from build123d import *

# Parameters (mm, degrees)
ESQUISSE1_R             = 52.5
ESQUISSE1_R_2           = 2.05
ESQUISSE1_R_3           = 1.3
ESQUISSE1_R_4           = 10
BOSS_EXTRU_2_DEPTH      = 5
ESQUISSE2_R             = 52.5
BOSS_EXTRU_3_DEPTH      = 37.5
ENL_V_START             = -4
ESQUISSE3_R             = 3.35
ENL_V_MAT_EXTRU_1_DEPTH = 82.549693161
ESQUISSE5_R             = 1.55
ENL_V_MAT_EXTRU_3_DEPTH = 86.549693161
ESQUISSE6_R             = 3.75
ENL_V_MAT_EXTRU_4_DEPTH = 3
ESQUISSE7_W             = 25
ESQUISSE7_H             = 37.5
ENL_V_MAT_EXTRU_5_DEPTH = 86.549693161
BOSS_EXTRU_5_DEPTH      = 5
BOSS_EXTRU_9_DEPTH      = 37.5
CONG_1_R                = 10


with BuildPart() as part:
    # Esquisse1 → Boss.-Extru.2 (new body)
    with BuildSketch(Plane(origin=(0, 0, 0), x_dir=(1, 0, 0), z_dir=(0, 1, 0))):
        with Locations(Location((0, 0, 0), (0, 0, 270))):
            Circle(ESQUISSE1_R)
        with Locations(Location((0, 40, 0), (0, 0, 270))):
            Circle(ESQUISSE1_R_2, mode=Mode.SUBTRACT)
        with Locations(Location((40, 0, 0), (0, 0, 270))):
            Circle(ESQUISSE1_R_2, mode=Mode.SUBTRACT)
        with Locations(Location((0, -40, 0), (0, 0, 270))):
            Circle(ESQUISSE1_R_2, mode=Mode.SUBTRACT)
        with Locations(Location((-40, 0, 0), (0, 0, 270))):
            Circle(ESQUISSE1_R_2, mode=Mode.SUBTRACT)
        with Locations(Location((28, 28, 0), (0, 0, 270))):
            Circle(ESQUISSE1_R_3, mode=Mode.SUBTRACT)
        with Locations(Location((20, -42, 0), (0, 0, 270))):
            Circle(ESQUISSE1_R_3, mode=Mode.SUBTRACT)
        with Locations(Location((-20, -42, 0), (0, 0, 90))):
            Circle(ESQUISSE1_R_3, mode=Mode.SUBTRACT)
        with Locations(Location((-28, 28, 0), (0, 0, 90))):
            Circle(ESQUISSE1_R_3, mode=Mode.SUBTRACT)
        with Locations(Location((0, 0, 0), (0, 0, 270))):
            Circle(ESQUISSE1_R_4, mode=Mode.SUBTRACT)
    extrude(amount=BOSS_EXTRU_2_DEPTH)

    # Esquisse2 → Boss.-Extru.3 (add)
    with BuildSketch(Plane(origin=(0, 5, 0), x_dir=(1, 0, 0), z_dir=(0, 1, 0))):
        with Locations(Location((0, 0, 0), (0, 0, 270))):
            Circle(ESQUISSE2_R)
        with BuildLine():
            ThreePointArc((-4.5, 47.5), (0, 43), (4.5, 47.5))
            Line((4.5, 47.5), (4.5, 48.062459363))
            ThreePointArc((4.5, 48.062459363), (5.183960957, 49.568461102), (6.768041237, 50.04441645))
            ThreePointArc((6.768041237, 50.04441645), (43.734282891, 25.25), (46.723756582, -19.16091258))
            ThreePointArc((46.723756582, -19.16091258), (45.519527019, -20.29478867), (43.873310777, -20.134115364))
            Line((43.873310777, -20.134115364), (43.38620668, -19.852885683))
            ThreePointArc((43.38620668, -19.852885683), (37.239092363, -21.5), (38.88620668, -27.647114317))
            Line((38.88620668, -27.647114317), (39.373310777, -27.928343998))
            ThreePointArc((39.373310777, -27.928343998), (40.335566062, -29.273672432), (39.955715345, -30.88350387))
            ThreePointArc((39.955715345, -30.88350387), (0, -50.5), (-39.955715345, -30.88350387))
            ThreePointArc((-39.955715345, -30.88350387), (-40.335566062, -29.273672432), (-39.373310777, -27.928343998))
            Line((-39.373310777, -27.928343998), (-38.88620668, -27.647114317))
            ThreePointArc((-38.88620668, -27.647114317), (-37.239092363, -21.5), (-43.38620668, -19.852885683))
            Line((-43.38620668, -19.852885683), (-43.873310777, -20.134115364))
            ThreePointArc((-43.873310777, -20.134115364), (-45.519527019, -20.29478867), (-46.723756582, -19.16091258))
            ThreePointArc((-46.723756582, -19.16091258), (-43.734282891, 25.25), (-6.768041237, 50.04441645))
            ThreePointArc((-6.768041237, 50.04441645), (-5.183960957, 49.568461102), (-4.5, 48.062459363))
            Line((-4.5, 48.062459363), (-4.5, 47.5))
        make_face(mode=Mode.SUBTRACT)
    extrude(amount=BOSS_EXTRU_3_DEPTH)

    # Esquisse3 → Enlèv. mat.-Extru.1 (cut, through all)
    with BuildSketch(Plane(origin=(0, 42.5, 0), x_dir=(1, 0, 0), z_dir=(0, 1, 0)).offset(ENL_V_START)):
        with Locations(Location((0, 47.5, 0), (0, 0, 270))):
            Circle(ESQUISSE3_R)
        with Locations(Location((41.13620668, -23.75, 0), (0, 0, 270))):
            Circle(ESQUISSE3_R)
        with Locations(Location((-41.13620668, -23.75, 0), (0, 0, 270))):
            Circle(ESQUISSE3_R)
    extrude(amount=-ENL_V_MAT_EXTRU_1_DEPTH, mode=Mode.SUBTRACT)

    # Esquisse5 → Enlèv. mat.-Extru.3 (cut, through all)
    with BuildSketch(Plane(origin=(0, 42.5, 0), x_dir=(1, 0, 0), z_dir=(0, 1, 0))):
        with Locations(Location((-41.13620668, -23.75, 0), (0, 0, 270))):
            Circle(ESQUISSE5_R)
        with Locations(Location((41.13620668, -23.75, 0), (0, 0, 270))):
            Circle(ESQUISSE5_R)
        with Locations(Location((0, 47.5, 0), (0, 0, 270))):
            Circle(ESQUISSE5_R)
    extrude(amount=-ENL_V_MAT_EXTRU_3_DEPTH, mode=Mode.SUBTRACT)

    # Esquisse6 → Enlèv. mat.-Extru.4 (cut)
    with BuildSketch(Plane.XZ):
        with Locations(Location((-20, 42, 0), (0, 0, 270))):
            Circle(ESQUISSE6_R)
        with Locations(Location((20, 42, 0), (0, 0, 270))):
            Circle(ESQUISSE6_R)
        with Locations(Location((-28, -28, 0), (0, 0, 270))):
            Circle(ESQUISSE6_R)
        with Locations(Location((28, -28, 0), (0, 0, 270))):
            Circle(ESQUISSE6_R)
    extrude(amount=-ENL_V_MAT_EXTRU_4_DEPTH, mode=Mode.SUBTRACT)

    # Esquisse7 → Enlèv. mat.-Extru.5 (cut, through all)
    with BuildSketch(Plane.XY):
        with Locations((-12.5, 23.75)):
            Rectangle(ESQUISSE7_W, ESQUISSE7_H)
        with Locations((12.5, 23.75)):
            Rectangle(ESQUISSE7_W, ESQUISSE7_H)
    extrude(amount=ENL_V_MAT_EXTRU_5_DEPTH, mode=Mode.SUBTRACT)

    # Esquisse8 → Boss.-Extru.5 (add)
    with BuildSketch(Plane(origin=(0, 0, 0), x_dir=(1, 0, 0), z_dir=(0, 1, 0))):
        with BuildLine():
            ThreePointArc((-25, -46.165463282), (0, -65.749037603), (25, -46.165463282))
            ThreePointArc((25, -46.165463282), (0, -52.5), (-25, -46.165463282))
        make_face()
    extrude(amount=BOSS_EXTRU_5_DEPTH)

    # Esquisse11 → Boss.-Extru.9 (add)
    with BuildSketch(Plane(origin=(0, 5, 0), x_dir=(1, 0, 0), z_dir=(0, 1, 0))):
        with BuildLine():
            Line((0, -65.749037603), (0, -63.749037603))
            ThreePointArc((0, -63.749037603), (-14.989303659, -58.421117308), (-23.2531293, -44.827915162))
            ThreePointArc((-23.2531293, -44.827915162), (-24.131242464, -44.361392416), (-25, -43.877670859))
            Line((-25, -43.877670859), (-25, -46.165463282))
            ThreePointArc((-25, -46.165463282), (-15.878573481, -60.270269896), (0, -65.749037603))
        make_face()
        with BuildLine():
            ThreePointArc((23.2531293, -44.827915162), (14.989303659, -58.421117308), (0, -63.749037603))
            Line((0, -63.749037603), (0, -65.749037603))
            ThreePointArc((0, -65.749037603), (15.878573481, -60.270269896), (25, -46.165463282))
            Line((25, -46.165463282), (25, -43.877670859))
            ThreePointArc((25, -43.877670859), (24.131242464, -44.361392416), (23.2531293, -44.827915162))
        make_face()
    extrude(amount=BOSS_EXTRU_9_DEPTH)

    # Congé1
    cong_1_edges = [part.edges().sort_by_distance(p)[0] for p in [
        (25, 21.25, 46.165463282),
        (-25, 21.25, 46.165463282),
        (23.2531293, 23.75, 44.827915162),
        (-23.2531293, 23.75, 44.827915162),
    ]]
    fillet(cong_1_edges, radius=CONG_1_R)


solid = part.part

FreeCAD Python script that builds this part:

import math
import FreeCAD as App
import Part
import Sketcher

V = App.Vector
Q = App.Units.Quantity


def edges_at(feature, points):
    """Names of the edges that pass closest to the given points."""
    edges = feature.Shape.Edges
    near = lambda p: min(range(len(edges)), key=lambda i: edges[i].distToShape(Part.Vertex(*p))[0])
    return sorted({f"Edge{near(p) + 1}" for p in points})

doc = App.newDocument("Part")
body = doc.addObject("PartDesign::Body", "Body")

sketch1 = body.newObject("Sketcher::SketchObject", "Sketch")
sketch1.AttachmentSupport = (doc.getObject("XZ_Plane"), [""])
sketch1.MapMode = "FlatFace"
sketch1.addGeometry(Part.Circle(V(0, 0, 0), V(0, 0, 1), 52.5), False)
sketch1.addGeometry(Part.Circle(V(-28, -28, 0), V(0, 0, 1), 1.3), False)
sketch1.addGeometry(Part.Circle(V(-40, 0, 0), V(0, 0, 1), 2), False)
sketch1.addGeometry(Part.Circle(V(0, -40, 0), V(0, 0, 1), 2), False)
sketch1.addGeometry(Part.Circle(V(-20, 42, 0), V(0, 0, 1), 1.3), False)
sketch1.addGeometry(Part.Circle(V(0, 0, 0), V(0, 0, 1), 10), False)
sketch1.addGeometry(Part.Circle(V(28, -28, 0), V(0, 0, 1), 1.3), False)
sketch1.addGeometry(Part.Circle(V(40, 0, 0), V(0, 0, 1), 2), False)
sketch1.addGeometry(Part.Circle(V(0, 40, 0), V(0, 0, 1), 2), False)
sketch1.addGeometry(Part.Circle(V(20, 42, 0), V(0, 0, 1), 1.3), False)
sketch1.addConstraint(Sketcher.Constraint("Coincident", 0, 3, -1, 1))
sketch1.addConstraint(Sketcher.Constraint("Coincident", 5, 3, -1, 1))
sketch1.addConstraint(Sketcher.Constraint("Equal", 2, 3))
sketch1.addConstraint(Sketcher.Constraint("Equal", 1, 4))
sketch1.addConstraint(Sketcher.Constraint("Equal", 4, 6))
sketch1.addConstraint(Sketcher.Constraint("Equal", 3, 7))
sketch1.addConstraint(Sketcher.Constraint("Equal", 7, 8))
sketch1.addConstraint(Sketcher.Constraint("Equal", 6, 9))
sketch1.addConstraint(Sketcher.Constraint("Symmetric", 2, 3, 7, 3, -1, 1))
sketch1.addConstraint(Sketcher.Constraint("Symmetric", 3, 3, 8, 3, -1, 1))
sketch1.addConstraint(Sketcher.Constraint("Symmetric", 1, 3, 6, 3, -2))
sketch1.addConstraint(Sketcher.Constraint("Symmetric", 4, 3, 9, 3, -2))
sketch1.addConstraint(Sketcher.Constraint("PointOnObject", 2, 3, -1))
sketch1.addConstraint(Sketcher.Constraint("PointOnObject", 3, 3, -2))
sketch1.addConstraint(Sketcher.Constraint("Diameter", 0, 105.0))
sketch1.addConstraint(Sketcher.Constraint("Diameter", 5, 20.0))
sketch1.addConstraint(Sketcher.Constraint("Diameter", 1, 2.6))
sketch1.addConstraint(Sketcher.Constraint("Diameter", 2, 4.1))
sketch1.addConstraint(Sketcher.Constraint("DistanceX", 1, 3, -1, 1, 28.0))
sketch1.addConstraint(Sketcher.Constraint("DistanceY", 1, 3, -1, 1, 28.0))
sketch1.addConstraint(Sketcher.Constraint("DistanceX", 2, 3, -1, 1, 40.0))
sketch1.addConstraint(Sketcher.Constraint("DistanceY", 3, 3, -1, 1, 40.0))
sketch1.addConstraint(Sketcher.Constraint("DistanceX", 4, 3, -1, 1, 20.0))
sketch1.addConstraint(Sketcher.Constraint("DistanceY", -1, 1, 4, 3, 42.0))
pad1 = body.newObject("PartDesign::Pad", "Pad")
pad1.Profile = sketch1
pad1.Length = 5
pad1.Reversed = True

sketch2 = body.newObject("Sketcher::SketchObject", "Sketch001")
sketch2.AttachmentSupport = (doc.getObject("XZ_Plane"), [""])
sketch2.MapMode = "FlatFace"
sketch2.AttachmentOffset = App.Placement(V(0, 0, -5), App.Rotation())
sketch2.addGeometry(Part.Circle(V(0, 0, 0), V(0, 0, 1), 52.5), False)
sketch2.addGeometry(Part.LineSegment(V(-4.5, -48.1, 0), V(-4.5, -47.5, 0)), False)
sketch2.addGeometry(Part.ArcOfCircle(Part.Circle(V(0, -47.5, 0), V(0, 0, 1), 4.5), math.radians(0), math.radians(180)), False)
sketch2.addGeometry(Part.LineSegment(V(4.5, -47.5, 0), V(4.5, -48.1, 0)), False)
sketch2.addGeometry(Part.ArcOfCircle(Part.Circle(V(6.5, -48.1, 0), V(0, 0, 1), 2), math.radians(180), math.radians(278)), False)
sketch2.addGeometry(Part.ArcOfCircle(Part.Circle(V(0, 0, 0), V(0, 0, 1), 50.5), math.radians(-82), math.radians(22)), False)
sketch2.addGeometry(Part.ArcOfCircle(Part.Circle(V(44.9, 18.4, 0), V(0, 0, 1), 2), math.radians(22), math.radians(120)), False)
sketch2.addGeometry(Part.LineSegment(V(43.9, 20.1, 0), V(43.4, 19.9, 0)), False)
sketch2.addGeometry(Part.ArcOfCircle(Part.Circle(V(41.1, 23.8, 0), V(0, 0, 1), 4.5), math.radians(120), math.radians(300)), False)
sketch2.addGeometry(Part.LineSegment(V(38.9, 27.6, 0), V(39.4, 27.9, 0)), False)
sketch2.addGeometry(Part.ArcOfCircle(Part.Circle(V(38.4, 29.7, 0), V(0, 0, 1), 2), math.radians(-60), math.radians(38)), False)
sketch2.addGeometry(Part.ArcOfCircle(Part.Circle(V(0, 0, 0), V(0, 0, 1), 50.5), math.radians(38), math.radians(142)), False)
sketch2.addGeometry(Part.ArcOfCircle(Part.Circle(V(-38.4, 29.7, 0), V(0, 0, 1), 2), math.radians(142), math.radians(240)), False)
sketch2.addGeometry(Part.LineSegment(V(-39.4, 27.9, 0), V(-38.9, 27.6, 0)), False)
sketch2.addGeometry(Part.ArcOfCircle(Part.Circle(V(-41.1, 23.8, 0), V(0, 0, 1), 4.5), math.radians(-120), math.radians(60)), False)
sketch2.addGeometry(Part.LineSegment(V(-43.4, 19.9, 0), V(-43.9, 20.1, 0)), False)
sketch2.addGeometry(Part.ArcOfCircle(Part.Circle(V(-44.9, 18.4, 0), V(0, 0, 1), 2), math.radians(60), math.radians(158)), False)
sketch2.addGeometry(Part.ArcOfCircle(Part.Circle(V(0, 0, 0), V(0, 0, 1), 50.5), math.radians(158), math.radians(262)), False)
sketch2.addGeometry(Part.ArcOfCircle(Part.Circle(V(-6.5, -48.1, 0), V(0, 0, 1), 2), math.radians(-98), math.radians(0)), False)
sketch2.addConstraint(Sketcher.Constraint("Tangent", 1, 2, 2, 2))
sketch2.addConstraint(Sketcher.Constraint("Tangent", 2, 1, 3, 1))
sketch2.addConstraint(Sketcher.Constraint("Tangent", 3, 2, 4, 1))
sketch2.addConstraint(Sketcher.Constraint("Tangent", 4, 2, 5, 1))
sketch2.addConstraint(Sketcher.Constraint("Tangent", 5, 2, 6, 1))
sketch2.addConstraint(Sketcher.Constraint("Tangent", 6, 2, 7, 1))
sketch2.addConstraint(Sketcher.Constraint("Tangent", 7, 2, 8, 2))
sketch2.addConstraint(Sketcher.Constraint("Tangent", 8, 1, 9, 1))
sketch2.addConstraint(Sketcher.Constraint("Tangent", 9, 2, 10, 1))
sketch2.addConstraint(Sketcher.Constraint("Tangent", 10, 2, 11, 1))
sketch2.addConstraint(Sketcher.Constraint("Tangent", 11, 2, 12, 1))
sketch2.addConstraint(Sketcher.Constraint("Tangent", 12, 2, 13, 1))
sketch2.addConstraint(Sketcher.Constraint("Tangent", 13, 2, 14, 2))
sketch2.addConstraint(Sketcher.Constraint("Tangent", 14, 1, 15, 1))
sketch2.addConstraint(Sketcher.Constraint("Tangent", 15, 2, 16, 1))
sketch2.addConstraint(Sketcher.Constraint("Tangent", 16, 2, 17, 1))
sketch2.addConstraint(Sketcher.Constraint("Tangent", 17, 2, 18, 1))
sketch2.addConstraint(Sketcher.Constraint("Tangent", 18, 2, 1, 1))
sketch2.addConstraint(Sketcher.Constraint("Vertical", 1))
sketch2.addConstraint(Sketcher.Constraint("Vertical", 3))
sketch2.addConstraint(Sketcher.Constraint("Coincident", 0, 3, -1, 1))
sketch2.addConstraint(Sketcher.Constraint("Coincident", 5, 3, -1, 1))
sketch2.addConstraint(Sketcher.Constraint("Coincident", 11, 3, -1, 1))
sketch2.addConstraint(Sketcher.Constraint("Coincident", 17, 3, -1, 1))
sketch2.addConstraint(Sketcher.Constraint("Equal", 4, 6))
sketch2.addConstraint(Sketcher.Constraint("Equal", 2, 8))
sketch2.addConstraint(Sketcher.Constraint("Equal", 6, 10))
sketch2.addConstraint(Sketcher.Constraint("Equal", 5, 11))
sketch2.addConstraint(Sketcher.Constraint("Equal", 10, 12))
sketch2.addConstraint(Sketcher.Constraint("Equal", 8, 14))
sketch2.addConstraint(Sketcher.Constraint("Equal", 12, 16))
sketch2.addConstraint(Sketcher.Constraint("Equal", 11, 17))
sketch2.addConstraint(Sketcher.Constraint("Equal", 16, 18))
sketch2.addConstraint(Sketcher.Constraint("Symmetric", 8, 3, 14, 3, -2))
sketch2.addConstraint(Sketcher.Constraint("PointOnObject", 2, 3, -2))
sketch2.addConstraint(Sketcher.Constraint("Parallel", 7, 9))
sketch2.addConstraint(Sketcher.Constraint("Parallel", 13, 15))
sketch2.addConstraint(Sketcher.Constraint("Horizontal", 10, 3, 12, 3))
sketch2.addConstraint(Sketcher.Constraint("Equal", 7, 9))
sketch2.addConstraint(Sketcher.Constraint("Diameter", 0, 105.0))
sketch2.addConstraint(Sketcher.Constraint("Radius", 4, 2.0))
sketch2.addConstraint(Sketcher.Constraint("Radius", 2, 4.5))
sketch2.addConstraint(Sketcher.Constraint("Radius", 5, 50.5))
sketch2.addConstraint(Sketcher.Constraint("Angle", 7, Q("-150 deg")))
sketch2.addConstraint(Sketcher.Constraint("DistanceY", 2, 3, -1, 1, 47.5))
sketch2.addConstraint(Sketcher.Constraint("DistanceY", -1, 1, 8, 3, 23.75))
pad2 = body.newObject("PartDesign::Pad", "Pad001")
pad2.Profile = sketch2
pad2.Length = 37.5
pad2.Reversed = True

sketch3 = body.newObject("Sketcher::SketchObject", "Sketch002")
sketch3.AttachmentSupport = (doc.getObject("XZ_Plane"), [""])
sketch3.MapMode = "FlatFace"
sketch3.AttachmentOffset = App.Placement(V(0, 0, -38.5), App.Rotation())
sketch3.addGeometry(Part.Circle(V(0, -47.5, 0), V(0, 0, 1), 3.4), False)
sketch3.addGeometry(Part.Circle(V(41.1, 23.8, 0), V(0, 0, 1), 3.4), False)
sketch3.addGeometry(Part.Circle(V(-41.1, 23.8, 0), V(0, 0, 1), 3.4), False)
sketch3.addConstraint(Sketcher.Constraint("Equal", 0, 1))
sketch3.addConstraint(Sketcher.Constraint("Equal", 1, 2))
sketch3.addConstraint(Sketcher.Constraint("Symmetric", 1, 3, 2, 3, -2))
sketch3.addConstraint(Sketcher.Constraint("PointOnObject", 0, 3, -2))
sketch3.addConstraint(Sketcher.Constraint("Diameter", 0, 6.7))
sketch3.addConstraint(Sketcher.Constraint("DistanceY", 0, 3, -1, 1, 47.5))
sketch3.addConstraint(Sketcher.Constraint("DistanceY", -1, 1, 1, 3, 23.75))
sketch3.addConstraint(Sketcher.Constraint("DistanceX", -1, 1, 1, 3, 41.136207))
pocket1 = body.newObject("PartDesign::Pocket", "Pocket")
pocket1.Profile = sketch3
pocket1.Type = "ThroughAll"
pocket1.Reversed = True

sketch4 = body.newObject("Sketcher::SketchObject", "Sketch003")
sketch4.AttachmentSupport = (doc.getObject("XZ_Plane"), [""])
sketch4.MapMode = "FlatFace"
sketch4.AttachmentOffset = App.Placement(V(0, 0, -42.5), App.Rotation())
sketch4.addGeometry(Part.Circle(V(-41.1, 23.8, 0), V(0, 0, 1), 1.6), False)
sketch4.addGeometry(Part.Circle(V(41.1, 23.8, 0), V(0, 0, 1), 1.6), False)
sketch4.addGeometry(Part.Circle(V(0, -47.5, 0), V(0, 0, 1), 1.6), False)
sketch4.addConstraint(Sketcher.Constraint("Equal", 0, 1))
sketch4.addConstraint(Sketcher.Constraint("Equal", 1, 2))
sketch4.addConstraint(Sketcher.Constraint("Symmetric", 0, 3, 1, 3, -2))
sketch4.addConstraint(Sketcher.Constraint("PointOnObject", 2, 3, -2))
sketch4.addConstraint(Sketcher.Constraint("Diameter", 0, 3.1))
sketch4.addConstraint(Sketcher.Constraint("DistanceY", 2, 3, -1, 1, 47.5))
sketch4.addConstraint(Sketcher.Constraint("DistanceY", -1, 1, 0, 3, 23.75))
sketch4.addConstraint(Sketcher.Constraint("DistanceX", 0, 3, -1, 1, 41.136207))
pocket2 = body.newObject("PartDesign::Pocket", "Pocket001")
pocket2.Profile = sketch4
pocket2.Type = "ThroughAll"
pocket2.Reversed = True

sketch5 = body.newObject("Sketcher::SketchObject", "Sketch004")
sketch5.AttachmentSupport = (doc.getObject("XZ_Plane"), [""])
sketch5.MapMode = "FlatFace"
sketch5.addGeometry(Part.Circle(V(-20, 42, 0), V(0, 0, 1), 3.8), False)
sketch5.addGeometry(Part.Circle(V(20, 42, 0), V(0, 0, 1), 3.8), False)
sketch5.addGeometry(Part.Circle(V(-28, -28, 0), V(0, 0, 1), 3.8), False)
sketch5.addGeometry(Part.Circle(V(28, -28, 0), V(0, 0, 1), 3.8), False)
sketch5.addConstraint(Sketcher.Constraint("Equal", 0, 1))
sketch5.addConstraint(Sketcher.Constraint("Equal", 1, 2))
sketch5.addConstraint(Sketcher.Constraint("Equal", 2, 3))
sketch5.addConstraint(Sketcher.Constraint("Symmetric", 0, 3, 1, 3, -2))
sketch5.addConstraint(Sketcher.Constraint("Symmetric", 2, 3, 3, 3, -2))
sketch5.addConstraint(Sketcher.Constraint("Diameter", 0, 7.5))
sketch5.addConstraint(Sketcher.Constraint("DistanceX", 0, 3, -1, 1, 20.0))
sketch5.addConstraint(Sketcher.Constraint("DistanceY", -1, 1, 0, 3, 42.0))
sketch5.addConstraint(Sketcher.Constraint("DistanceX", 2, 3, -1, 1, 28.0))
sketch5.addConstraint(Sketcher.Constraint("DistanceY", 2, 3, -1, 1, 28.0))
pocket3 = body.newObject("PartDesign::Pocket", "Pocket002")
pocket3.Profile = sketch5
pocket3.Length = 3

sketch6 = body.newObject("Sketcher::SketchObject", "Sketch005")
sketch6.AttachmentSupport = (doc.getObject("XY_Plane"), [""])
sketch6.MapMode = "FlatFace"
sketch6.addGeometry(Part.LineSegment(V(-25, 42, 0), V(-25, 5, 0)), False)
sketch6.addGeometry(Part.LineSegment(V(-25, 5, 0), V(25, 5, 0)), False)
sketch6.addGeometry(Part.LineSegment(V(25, 5, 0), V(25, 42, 0)), False)
sketch6.addGeometry(Part.LineSegment(V(25, 42, 0), V(-25, 42, 0)), False)
sketch6.addConstraint(Sketcher.Constraint("Coincident", 0, 2, 1, 1))
sketch6.addConstraint(Sketcher.Constraint("Coincident", 1, 2, 2, 1))
sketch6.addConstraint(Sketcher.Constraint("Coincident", 2, 2, 3, 1))
sketch6.addConstraint(Sketcher.Constraint("Coincident", 3, 2, 0, 1))
sketch6.addConstraint(Sketcher.Constraint("Vertical", 0))
sketch6.addConstraint(Sketcher.Constraint("Horizontal", 1))
sketch6.addConstraint(Sketcher.Constraint("Vertical", 2))
sketch6.addConstraint(Sketcher.Constraint("Horizontal", 3))
sketch6.addConstraint(Sketcher.Constraint("DistanceX", 1, 1, 1, 2, 50.0))
sketch6.addConstraint(Sketcher.Constraint("DistanceY", 0, 2, 0, 1, 37.5))
sketch6.addConstraint(Sketcher.Constraint("DistanceX", 0, 2, -1, 1, 25.0))
sketch6.addConstraint(Sketcher.Constraint("DistanceY", -1, 1, 0, 2, 5.0))
pocket4 = body.newObject("PartDesign::Pocket", "Pocket003")
pocket4.Profile = sketch6
pocket4.Type = "ThroughAll"
pocket4.Reversed = True

sketch7 = body.newObject("Sketcher::SketchObject", "Sketch006")
sketch7.AttachmentSupport = (doc.getObject("XZ_Plane"), [""])
sketch7.MapMode = "FlatFace"
sketch7.addGeometry(Part.ArcOfCircle(Part.Circle(V(0, 40, 0), V(0, 0, 1), 26), math.radians(14), math.radians(166)), False)
sketch7.addGeometry(Part.ArcOfCircle(Part.Circle(V(0, 0, 0), V(0, 0, 1), 53), math.radians(62), math.radians(118)), False)
sketch7.addConstraint(Sketcher.Constraint("Coincident", 0, 1, 1, 1))
sketch7.addConstraint(Sketcher.Constraint("Coincident", 1, 2, 0, 2))
sketch7.addConstraint(Sketcher.Constraint("Coincident", 1, 3, -1, 1))
sketch7.addConstraint(Sketcher.Constraint("PointOnObject", 0, 3, -2))
sketch7.addConstraint(Sketcher.Constraint("Radius", 1, 52.5))
sketch7.addConstraint(Sketcher.Constraint("DistanceY", -1, 1, 0, 3, 40.0))
sketch7.addConstraint(Sketcher.Constraint("DistanceX", -1, 1, 0, 1, 25.0))
pad3 = body.newObject("PartDesign::Pad", "Pad002")
pad3.Profile = sketch7
pad3.Length = 5
pad3.Reversed = True

sketch8 = body.newObject("Sketcher::SketchObject", "Sketch007")
sketch8.AttachmentSupport = (doc.getObject("XZ_Plane"), [""])
sketch8.MapMode = "FlatFace"
sketch8.AttachmentOffset = App.Placement(V(0, 0, -5), App.Rotation())
sketch8.addGeometry(Part.ArcOfCircle(Part.Circle(V(0, 40, 0), V(0, 0, 1), 23.7), math.radians(90), math.radians(168)), False)
sketch8.addGeometry(Part.ArcOfCircle(Part.Circle(V(0, 0, 0), V(0, 0, 1), 50.5), math.radians(117.42), math.radians(119.67)), False)
sketch8.addGeometry(Part.LineSegment(V(-25, 43.9, 0), V(-25, 46.2, 0)), False)
sketch8.addGeometry(Part.ArcOfCircle(Part.Circle(V(0, 40, 0), V(0, 0, 1), 25.7), math.radians(90), math.radians(166)), False)
sketch8.addGeometry(Part.ArcOfCircle(Part.Circle(V(0, 40, 0), V(0, 0, 1), 25.7), math.radians(14), math.radians(90)), False)
sketch8.addGeometry(Part.LineSegment(V(25, 46.2, 0), V(25, 43.9, 0)), False)
sketch8.addGeometry(Part.ArcOfCircle(Part.Circle(V(0, 0, 0), V(0, 0, 1), 50.5), math.radians(60.33), math.radians(62.58)), False)
sketch8.addGeometry(Part.ArcOfCircle(Part.Circle(V(0, 40, 0), V(0, 0, 1), 23.7), math.radians(12), math.radians(90)), False)
sketch8.addConstraint(Sketcher.Constraint("Coincident", 0, 2, 1, 1))
sketch8.addConstraint(Sketcher.Constraint("Coincident", 1, 2, 2, 1))
sketch8.addConstraint(Sketcher.Constraint("Coincident", 2, 2, 3, 2))
sketch8.addConstraint(Sketcher.Constraint("Tangent", 3, 1, 4, 2))
sketch8.addConstraint(Sketcher.Constraint("Coincident", 4, 1, 5, 1))
sketch8.addConstraint(Sketcher.Constraint("Coincident", 5, 2, 6, 1))
sketch8.addConstraint(Sketcher.Constraint("Coincident", 6, 2, 7, 1))
sketch8.addConstraint(Sketcher.Constraint("Tangent", 7, 2, 0, 1))
sketch8.addConstraint(Sketcher.Constraint("Vertical", 2))
sketch8.addConstraint(Sketcher.Constraint("Vertical", 5))
sketch8.addConstraint(Sketcher.Constraint("Coincident", 1, 3, -1, 1))
sketch8.addConstraint(Sketcher.Constraint("Coincident", 6, 3, -1, 1))
sketch8.addConstraint(Sketcher.Constraint("Coincident", 3, 3, 0, 3))
sketch8.addConstraint(Sketcher.Constraint("Equal", 3, 4))
sketch8.addConstraint(Sketcher.Constraint("Equal", 1, 6))
sketch8.addConstraint(Sketcher.Constraint("Equal", 0, 7))
sketch8.addConstraint(Sketcher.Constraint("Symmetric", 2, 2, 4, 1, -2))
sketch8.addConstraint(Sketcher.Constraint("PointOnObject", 3, 1, -2))
sketch8.addConstraint(Sketcher.Constraint("PointOnObject", 7, 2, -2))
sketch8.addConstraint(Sketcher.Constraint("DistanceY", -1, 1, 0, 3, 40.0))
sketch8.addConstraint(Sketcher.Constraint("DistanceX", 1, 2, -1, 1, 25.0))
sketch8.addConstraint(Sketcher.Constraint("DistanceY", 7, 2, 3, 1, 2.0))
sketch8.addConstraint(Sketcher.Constraint("Radius", 0, 23.749038))
sketch8.addConstraint(Sketcher.Constraint("Radius", 1, 50.500004))
pad4 = body.newObject("PartDesign::Pad", "Pad003")
pad4.Profile = sketch8
pad4.Length = 37.5
pad4.Reversed = True
doc.recompute()

fillet = body.newObject("PartDesign::Fillet", "Fillet")
fillet.Base = (pad4, edges_at(pad4, [
    (25, 23.75, 46.165),
    (-25, 23.75, 46.165),
    (23.253, 23.75, 44.828),
    (-23.253, 23.75, 44.828),
]))
fillet.Radius = 10

doc.recompute()
